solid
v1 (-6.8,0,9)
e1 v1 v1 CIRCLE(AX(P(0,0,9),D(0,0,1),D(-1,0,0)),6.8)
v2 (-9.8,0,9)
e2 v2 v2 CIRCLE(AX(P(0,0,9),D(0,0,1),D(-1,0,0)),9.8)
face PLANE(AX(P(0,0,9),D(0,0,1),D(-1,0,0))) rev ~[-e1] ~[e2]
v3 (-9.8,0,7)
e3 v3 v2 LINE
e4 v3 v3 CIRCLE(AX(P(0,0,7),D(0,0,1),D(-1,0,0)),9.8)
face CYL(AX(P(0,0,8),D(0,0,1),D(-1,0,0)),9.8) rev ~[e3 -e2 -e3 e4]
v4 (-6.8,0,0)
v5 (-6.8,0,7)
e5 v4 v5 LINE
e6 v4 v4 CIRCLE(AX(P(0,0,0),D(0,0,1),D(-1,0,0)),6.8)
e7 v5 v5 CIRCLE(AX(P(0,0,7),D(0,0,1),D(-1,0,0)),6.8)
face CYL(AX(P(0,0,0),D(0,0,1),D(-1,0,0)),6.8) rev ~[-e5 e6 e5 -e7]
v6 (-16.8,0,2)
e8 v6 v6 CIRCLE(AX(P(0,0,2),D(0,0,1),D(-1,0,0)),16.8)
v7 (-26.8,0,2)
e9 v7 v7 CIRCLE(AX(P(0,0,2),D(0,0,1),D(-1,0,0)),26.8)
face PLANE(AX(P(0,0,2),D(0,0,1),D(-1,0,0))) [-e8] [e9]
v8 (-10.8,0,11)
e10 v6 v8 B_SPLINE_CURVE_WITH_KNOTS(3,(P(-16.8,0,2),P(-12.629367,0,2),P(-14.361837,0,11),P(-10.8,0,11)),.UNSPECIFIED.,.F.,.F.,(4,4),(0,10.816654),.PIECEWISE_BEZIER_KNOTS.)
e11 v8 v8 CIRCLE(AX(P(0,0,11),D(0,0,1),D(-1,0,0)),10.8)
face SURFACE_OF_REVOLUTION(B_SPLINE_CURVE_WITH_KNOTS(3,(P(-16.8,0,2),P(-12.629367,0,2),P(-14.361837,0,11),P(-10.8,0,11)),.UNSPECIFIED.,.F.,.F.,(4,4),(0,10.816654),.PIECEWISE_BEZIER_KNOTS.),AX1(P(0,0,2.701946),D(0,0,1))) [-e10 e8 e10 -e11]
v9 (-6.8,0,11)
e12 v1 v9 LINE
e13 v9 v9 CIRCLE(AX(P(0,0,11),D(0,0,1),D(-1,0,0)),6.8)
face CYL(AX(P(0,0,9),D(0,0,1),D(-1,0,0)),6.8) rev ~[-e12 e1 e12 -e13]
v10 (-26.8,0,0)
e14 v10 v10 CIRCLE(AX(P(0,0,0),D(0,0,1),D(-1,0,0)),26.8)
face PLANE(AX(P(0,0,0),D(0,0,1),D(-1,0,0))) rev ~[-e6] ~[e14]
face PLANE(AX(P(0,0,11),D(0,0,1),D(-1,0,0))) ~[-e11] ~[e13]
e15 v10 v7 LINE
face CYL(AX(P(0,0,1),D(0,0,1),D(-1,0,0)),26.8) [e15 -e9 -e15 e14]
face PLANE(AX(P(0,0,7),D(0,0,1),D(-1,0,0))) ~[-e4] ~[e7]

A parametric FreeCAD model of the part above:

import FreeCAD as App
import Part
import Sketcher

V = App.Vector

doc = App.newDocument("Part")
body = doc.addObject("PartDesign::Body", "Body")

# Sketch on XZ plane
sketch1 = body.newObject("Sketcher::SketchObject", "Sketch")
sketch1.AttachmentSupport = (doc.getObject("XZ_Plane"), [""])
sketch1.MapMode = "FlatFace"
sketch1.addGeometry([
    Part.LineSegment(V(-6.8, 11, 0), V(-10.8, 11, 0)),  # 0
    Part.BSplineCurve([V(-16.8, 2, 0), V(-12.629367, 2, 0), V(-14.361837, 11, 0), V(-10.8, 11, 0)], [4, 4], [0, 10.816654], False, 3, [1, 1, 1, 1], False),  # 1
    Part.LineSegment(V(-16.8, 2, 0), V(-26.8, 2, 0)),  # 2
    Part.LineSegment(V(-26.8, 2, 0), V(-26.8, 0, 0)),  # 3
    Part.LineSegment(V(-26.8, 0, 0), V(-6.8, 0, 0)),  # 4
    Part.LineSegment(V(-6.8, 0, 0), V(-6.8, 7, 0)),  # 5
    Part.LineSegment(V(-6.8, 7, 0), V(-9.8, 7, 0)),  # 6
    Part.LineSegment(V(-9.8, 7, 0), V(-9.8, 9, 0)),  # 7
    Part.LineSegment(V(-9.8, 9, 0), V(-6.8, 9, 0)),  # 8
    Part.LineSegment(V(-6.8, 9, 0), V(-6.8, 11, 0)),  # 9
], False)
sketch1.addConstraint([
    Sketcher.Constraint("Block", 1),
    Sketcher.Constraint("Coincident", 0, 2, 1, 2),
    Sketcher.Constraint("Coincident", 1, 1, 2, 1),
    Sketcher.Constraint("Coincident", 2, 2, 3, 1),
    Sketcher.Constraint("Coincident", 3, 2, 4, 1),
    Sketcher.Constraint("Coincident", 4, 2, 5, 1),
    Sketcher.Constraint("Coincident", 5, 2, 6, 1),
    Sketcher.Constraint("Coincident", 6, 2, 7, 1),
    Sketcher.Constraint("Coincident", 7, 2, 8, 1),
    Sketcher.Constraint("Coincident", 8, 2, 9, 1),
    Sketcher.Constraint("Coincident", 9, 2, 0, 1),
    Sketcher.Constraint("Horizontal", 0),
    Sketcher.Constraint("Horizontal", 2),
    Sketcher.Constraint("Vertical", 3),
    Sketcher.Constraint("Horizontal", 4),
    Sketcher.Constraint("Vertical", 5),
    Sketcher.Constraint("Horizontal", 6),
    Sketcher.Constraint("Vertical", 7),
    Sketcher.Constraint("Horizontal", 8),
    Sketcher.Constraint("Vertical", 9),
    Sketcher.Constraint("PointOnObject", 3, 2, -1),
    Sketcher.Constraint("DistanceX", 0, 2, 0, 1, 4.0),
    Sketcher.Constraint("DistanceX", 2, 2, 2, 1, 10.0),
    Sketcher.Constraint("DistanceX", 4, 1, 4, 2, 20.0),
    Sketcher.Constraint("DistanceX", 6, 2, 6, 1, 3.0),
    Sketcher.Constraint("DistanceY", 5, 1, 5, 2, 7.0),
    Sketcher.Constraint("DistanceY", 7, 1, 7, 2, 2.0),
])
revolution = body.newObject("PartDesign::Revolution", "Revolution")
revolution.Profile = sketch1
revolution.ReferenceAxis = (sketch1, ["V_Axis"])
revolution.Angle = 360

doc.recompute()
